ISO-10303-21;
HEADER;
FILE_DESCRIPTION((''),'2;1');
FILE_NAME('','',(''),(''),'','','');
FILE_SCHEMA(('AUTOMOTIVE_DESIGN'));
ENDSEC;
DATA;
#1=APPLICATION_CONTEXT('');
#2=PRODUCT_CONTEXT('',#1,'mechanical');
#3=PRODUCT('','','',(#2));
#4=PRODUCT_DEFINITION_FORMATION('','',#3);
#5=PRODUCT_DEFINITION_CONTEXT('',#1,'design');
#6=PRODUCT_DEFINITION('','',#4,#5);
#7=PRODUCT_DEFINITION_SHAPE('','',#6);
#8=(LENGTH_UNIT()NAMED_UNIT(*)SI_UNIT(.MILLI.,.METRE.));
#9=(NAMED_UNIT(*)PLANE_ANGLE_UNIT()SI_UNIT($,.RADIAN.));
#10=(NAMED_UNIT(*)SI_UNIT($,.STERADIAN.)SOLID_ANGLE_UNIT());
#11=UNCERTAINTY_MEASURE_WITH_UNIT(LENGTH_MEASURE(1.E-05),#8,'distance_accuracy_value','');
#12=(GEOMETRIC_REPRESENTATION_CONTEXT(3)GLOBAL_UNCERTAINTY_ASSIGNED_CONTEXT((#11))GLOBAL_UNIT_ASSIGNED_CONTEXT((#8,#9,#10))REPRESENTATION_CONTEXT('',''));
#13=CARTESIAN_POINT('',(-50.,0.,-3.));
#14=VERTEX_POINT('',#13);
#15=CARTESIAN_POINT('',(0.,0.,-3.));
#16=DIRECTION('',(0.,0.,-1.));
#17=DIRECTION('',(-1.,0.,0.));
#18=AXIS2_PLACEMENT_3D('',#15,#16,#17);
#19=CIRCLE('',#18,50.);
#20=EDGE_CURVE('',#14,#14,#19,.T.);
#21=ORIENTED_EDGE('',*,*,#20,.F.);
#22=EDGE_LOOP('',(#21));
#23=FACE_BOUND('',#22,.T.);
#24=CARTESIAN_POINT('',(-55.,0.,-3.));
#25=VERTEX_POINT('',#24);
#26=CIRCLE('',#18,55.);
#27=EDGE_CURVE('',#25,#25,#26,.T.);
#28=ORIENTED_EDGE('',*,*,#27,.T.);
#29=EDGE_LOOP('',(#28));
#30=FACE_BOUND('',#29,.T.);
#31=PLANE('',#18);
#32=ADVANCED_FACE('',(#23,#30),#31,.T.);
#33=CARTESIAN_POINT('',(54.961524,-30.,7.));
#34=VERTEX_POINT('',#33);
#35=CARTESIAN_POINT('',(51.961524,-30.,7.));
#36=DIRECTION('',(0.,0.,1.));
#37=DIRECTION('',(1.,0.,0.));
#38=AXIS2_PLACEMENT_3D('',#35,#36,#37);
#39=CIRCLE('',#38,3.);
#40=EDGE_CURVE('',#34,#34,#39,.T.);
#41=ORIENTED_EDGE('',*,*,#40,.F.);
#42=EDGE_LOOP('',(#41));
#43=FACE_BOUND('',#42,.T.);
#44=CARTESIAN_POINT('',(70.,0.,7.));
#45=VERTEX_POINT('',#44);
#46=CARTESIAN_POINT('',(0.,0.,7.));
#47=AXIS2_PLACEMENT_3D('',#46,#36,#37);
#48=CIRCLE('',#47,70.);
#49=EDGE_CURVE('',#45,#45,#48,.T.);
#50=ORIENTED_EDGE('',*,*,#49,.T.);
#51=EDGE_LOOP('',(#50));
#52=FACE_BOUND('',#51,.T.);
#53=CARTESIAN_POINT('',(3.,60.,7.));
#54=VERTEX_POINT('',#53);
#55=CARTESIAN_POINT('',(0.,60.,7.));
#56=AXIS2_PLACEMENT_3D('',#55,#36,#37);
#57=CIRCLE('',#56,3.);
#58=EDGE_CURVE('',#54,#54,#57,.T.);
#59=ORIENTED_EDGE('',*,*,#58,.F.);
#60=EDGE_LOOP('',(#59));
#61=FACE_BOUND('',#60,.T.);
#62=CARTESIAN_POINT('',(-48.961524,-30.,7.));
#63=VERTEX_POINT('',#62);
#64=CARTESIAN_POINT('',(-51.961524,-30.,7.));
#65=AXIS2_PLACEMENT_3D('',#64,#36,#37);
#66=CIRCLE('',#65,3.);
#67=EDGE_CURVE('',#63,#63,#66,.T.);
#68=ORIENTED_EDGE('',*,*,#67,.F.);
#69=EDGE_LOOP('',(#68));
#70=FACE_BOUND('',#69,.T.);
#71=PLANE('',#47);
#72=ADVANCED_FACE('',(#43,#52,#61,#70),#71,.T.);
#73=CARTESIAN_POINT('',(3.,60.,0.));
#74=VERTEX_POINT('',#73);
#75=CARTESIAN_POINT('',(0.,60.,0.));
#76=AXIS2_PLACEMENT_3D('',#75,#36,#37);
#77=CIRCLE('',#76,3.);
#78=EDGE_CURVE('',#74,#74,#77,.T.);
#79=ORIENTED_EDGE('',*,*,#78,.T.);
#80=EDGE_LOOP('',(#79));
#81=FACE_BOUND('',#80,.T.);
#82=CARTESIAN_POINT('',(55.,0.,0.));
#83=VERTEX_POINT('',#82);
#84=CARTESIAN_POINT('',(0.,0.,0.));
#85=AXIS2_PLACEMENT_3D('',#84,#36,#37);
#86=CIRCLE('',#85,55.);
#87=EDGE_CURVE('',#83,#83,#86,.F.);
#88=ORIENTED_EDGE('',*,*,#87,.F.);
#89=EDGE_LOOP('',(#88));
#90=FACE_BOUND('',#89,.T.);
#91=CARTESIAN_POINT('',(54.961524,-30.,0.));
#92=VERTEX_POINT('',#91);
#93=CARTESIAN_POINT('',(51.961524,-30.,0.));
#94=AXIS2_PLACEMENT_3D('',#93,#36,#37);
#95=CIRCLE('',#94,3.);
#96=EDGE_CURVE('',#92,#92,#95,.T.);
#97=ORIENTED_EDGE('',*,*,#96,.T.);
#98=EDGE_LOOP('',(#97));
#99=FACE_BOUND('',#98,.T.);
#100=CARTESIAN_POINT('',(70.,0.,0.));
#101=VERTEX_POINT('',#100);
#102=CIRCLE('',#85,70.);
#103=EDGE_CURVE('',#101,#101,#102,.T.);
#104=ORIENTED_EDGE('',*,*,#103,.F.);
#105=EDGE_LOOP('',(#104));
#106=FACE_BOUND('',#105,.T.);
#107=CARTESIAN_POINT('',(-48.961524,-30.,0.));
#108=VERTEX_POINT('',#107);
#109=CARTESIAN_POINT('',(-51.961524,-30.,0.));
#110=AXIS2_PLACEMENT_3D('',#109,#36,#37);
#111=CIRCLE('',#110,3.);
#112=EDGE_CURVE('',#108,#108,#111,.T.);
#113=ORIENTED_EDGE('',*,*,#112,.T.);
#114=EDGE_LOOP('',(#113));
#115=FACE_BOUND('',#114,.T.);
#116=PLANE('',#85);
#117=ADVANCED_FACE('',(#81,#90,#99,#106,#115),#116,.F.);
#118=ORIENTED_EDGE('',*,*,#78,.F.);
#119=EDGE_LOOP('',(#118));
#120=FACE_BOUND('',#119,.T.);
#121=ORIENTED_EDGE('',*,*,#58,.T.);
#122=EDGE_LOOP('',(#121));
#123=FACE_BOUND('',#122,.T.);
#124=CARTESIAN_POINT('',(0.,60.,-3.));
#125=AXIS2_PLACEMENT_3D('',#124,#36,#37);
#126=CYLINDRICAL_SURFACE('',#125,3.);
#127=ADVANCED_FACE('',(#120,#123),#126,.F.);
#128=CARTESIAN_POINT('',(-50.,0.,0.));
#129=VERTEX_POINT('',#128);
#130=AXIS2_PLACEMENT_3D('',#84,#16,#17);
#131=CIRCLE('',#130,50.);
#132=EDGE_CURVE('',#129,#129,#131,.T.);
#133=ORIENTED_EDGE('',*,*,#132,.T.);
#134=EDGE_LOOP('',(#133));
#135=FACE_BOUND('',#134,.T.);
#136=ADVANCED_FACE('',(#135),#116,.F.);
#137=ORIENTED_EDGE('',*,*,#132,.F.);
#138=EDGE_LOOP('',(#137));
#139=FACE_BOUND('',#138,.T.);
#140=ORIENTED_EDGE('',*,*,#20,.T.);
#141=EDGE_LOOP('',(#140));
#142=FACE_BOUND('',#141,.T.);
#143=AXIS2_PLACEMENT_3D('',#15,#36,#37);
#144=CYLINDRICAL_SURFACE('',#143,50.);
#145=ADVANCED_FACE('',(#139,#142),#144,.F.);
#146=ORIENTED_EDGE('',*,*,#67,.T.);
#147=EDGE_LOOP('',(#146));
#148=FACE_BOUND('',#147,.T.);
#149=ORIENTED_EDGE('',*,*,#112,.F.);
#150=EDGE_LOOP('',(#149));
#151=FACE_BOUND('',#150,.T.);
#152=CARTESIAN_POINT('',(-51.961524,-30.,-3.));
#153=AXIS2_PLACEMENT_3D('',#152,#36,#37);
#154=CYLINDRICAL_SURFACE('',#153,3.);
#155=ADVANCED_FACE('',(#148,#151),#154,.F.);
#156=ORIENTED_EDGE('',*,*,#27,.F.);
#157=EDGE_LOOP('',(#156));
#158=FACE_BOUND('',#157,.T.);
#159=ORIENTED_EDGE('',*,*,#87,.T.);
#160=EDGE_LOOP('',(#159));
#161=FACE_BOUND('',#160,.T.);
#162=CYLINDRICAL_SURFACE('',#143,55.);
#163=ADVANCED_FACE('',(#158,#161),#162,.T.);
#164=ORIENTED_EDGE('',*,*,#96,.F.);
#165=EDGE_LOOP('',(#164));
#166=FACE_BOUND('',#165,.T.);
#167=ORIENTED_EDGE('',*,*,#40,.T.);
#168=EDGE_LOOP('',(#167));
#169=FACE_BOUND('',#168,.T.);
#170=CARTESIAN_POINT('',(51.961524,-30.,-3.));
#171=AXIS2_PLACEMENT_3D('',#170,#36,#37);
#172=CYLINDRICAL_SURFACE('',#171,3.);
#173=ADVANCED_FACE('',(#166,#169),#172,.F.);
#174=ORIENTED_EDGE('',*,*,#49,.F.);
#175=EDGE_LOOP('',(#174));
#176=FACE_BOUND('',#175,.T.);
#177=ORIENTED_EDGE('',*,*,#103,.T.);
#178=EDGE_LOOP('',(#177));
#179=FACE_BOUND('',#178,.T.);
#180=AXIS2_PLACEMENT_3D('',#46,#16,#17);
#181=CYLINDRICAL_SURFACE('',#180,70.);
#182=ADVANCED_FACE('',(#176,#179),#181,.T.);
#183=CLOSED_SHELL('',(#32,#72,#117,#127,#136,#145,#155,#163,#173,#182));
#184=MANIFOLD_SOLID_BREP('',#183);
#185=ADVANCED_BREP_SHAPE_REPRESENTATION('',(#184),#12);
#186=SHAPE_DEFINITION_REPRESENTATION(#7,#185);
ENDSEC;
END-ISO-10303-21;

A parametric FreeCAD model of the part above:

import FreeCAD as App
import Part
import Sketcher
from FreeCAD import Vector
Q = App.Units.Quantity

doc = App.newDocument("Part")
body = doc.addObject("PartDesign::Body", "Body")

sketch1 = body.newObject("Sketcher::SketchObject", "Sketch")
sketch1.AttachmentSupport = (doc.getObject("XY_Plane"), [""])
sketch1.MapMode = "FlatFace"
sketch1.addGeometry(Part.Circle(Vector(0, 0, 0), Vector(0, 0, 1), 70), False)
sketch1.addConstraint([
    Sketcher.Constraint("Coincident", 0, 3, -1, 1),
    Sketcher.Constraint("Diameter", 0, Q("140 mm")),
])
pad1 = body.newObject("PartDesign::Pad", "Pad")
pad1.Profile = sketch1
pad1.Length = 7

sketch2 = body.newObject("Sketcher::SketchObject", "Sketch001")
sketch2.AttachmentSupport = (doc.getObject("XY_Plane"), [""])
sketch2.MapMode = "FlatFace"
sketch2.addGeometry([
    Part.Circle(Vector(0, 0, 0), Vector(0, 0, 1), 55),
    Part.Circle(Vector(0, 0, 0), Vector(0, 0, 1), 50),
], False)
sketch2.addConstraint([
    Sketcher.Constraint("Coincident", 0, 3, -1, 1),
    Sketcher.Constraint("Coincident", 1, 3, -1, 1),
    Sketcher.Constraint("Diameter", 0, Q("110 mm")),
    Sketcher.Constraint("Diameter", 1, Q("100 mm")),
])
pad2 = body.newObject("PartDesign::Pad", "Pad001")
pad2.Profile = sketch2
pad2.Length = 3
pad2.Reversed = True

sketch3 = body.newObject("Sketcher::SketchObject", "Sketch002")
sketch3.AttachmentSupport = (doc.getObject("XY_Plane"), [""])
sketch3.MapMode = "FlatFace"
sketch3.AttachmentOffset = App.Placement(Vector(0, 0, 7), App.Rotation())
sketch3.addGeometry([
    Part.Circle(Vector(0, 60, 0), Vector(0, 0, 1), 3),
    Part.Circle(Vector(52, -30, 0), Vector(0, 0, 1), 3),
    Part.Circle(Vector(-52, -30, 0), Vector(0, 0, 1), 3),
], False)
sketch3.addConstraint([
    Sketcher.Constraint("Equal", 0, 1),
    Sketcher.Constraint("Equal", 1, 2),
    Sketcher.Constraint("Symmetric", 1, 3, 2, 3, -2),
    Sketcher.Constraint("PointOnObject", 0, 3, -2),
    Sketcher.Constraint("Diameter", 0, Q("6 mm")),
    Sketcher.Constraint("DistanceY", -1, 1, 0, 3, Q("60 mm")),
    Sketcher.Constraint("DistanceY", 1, 3, -1, 1, Q("30 mm")),
    Sketcher.Constraint("DistanceX", 2, 3, 1, 3, Q("103.923048 mm")),
])
pocket1 = body.newObject("PartDesign::Pocket", "Pocket")
pocket1.Profile = sketch3
pocket1.Type = "ThroughAll"

doc.recompute()
